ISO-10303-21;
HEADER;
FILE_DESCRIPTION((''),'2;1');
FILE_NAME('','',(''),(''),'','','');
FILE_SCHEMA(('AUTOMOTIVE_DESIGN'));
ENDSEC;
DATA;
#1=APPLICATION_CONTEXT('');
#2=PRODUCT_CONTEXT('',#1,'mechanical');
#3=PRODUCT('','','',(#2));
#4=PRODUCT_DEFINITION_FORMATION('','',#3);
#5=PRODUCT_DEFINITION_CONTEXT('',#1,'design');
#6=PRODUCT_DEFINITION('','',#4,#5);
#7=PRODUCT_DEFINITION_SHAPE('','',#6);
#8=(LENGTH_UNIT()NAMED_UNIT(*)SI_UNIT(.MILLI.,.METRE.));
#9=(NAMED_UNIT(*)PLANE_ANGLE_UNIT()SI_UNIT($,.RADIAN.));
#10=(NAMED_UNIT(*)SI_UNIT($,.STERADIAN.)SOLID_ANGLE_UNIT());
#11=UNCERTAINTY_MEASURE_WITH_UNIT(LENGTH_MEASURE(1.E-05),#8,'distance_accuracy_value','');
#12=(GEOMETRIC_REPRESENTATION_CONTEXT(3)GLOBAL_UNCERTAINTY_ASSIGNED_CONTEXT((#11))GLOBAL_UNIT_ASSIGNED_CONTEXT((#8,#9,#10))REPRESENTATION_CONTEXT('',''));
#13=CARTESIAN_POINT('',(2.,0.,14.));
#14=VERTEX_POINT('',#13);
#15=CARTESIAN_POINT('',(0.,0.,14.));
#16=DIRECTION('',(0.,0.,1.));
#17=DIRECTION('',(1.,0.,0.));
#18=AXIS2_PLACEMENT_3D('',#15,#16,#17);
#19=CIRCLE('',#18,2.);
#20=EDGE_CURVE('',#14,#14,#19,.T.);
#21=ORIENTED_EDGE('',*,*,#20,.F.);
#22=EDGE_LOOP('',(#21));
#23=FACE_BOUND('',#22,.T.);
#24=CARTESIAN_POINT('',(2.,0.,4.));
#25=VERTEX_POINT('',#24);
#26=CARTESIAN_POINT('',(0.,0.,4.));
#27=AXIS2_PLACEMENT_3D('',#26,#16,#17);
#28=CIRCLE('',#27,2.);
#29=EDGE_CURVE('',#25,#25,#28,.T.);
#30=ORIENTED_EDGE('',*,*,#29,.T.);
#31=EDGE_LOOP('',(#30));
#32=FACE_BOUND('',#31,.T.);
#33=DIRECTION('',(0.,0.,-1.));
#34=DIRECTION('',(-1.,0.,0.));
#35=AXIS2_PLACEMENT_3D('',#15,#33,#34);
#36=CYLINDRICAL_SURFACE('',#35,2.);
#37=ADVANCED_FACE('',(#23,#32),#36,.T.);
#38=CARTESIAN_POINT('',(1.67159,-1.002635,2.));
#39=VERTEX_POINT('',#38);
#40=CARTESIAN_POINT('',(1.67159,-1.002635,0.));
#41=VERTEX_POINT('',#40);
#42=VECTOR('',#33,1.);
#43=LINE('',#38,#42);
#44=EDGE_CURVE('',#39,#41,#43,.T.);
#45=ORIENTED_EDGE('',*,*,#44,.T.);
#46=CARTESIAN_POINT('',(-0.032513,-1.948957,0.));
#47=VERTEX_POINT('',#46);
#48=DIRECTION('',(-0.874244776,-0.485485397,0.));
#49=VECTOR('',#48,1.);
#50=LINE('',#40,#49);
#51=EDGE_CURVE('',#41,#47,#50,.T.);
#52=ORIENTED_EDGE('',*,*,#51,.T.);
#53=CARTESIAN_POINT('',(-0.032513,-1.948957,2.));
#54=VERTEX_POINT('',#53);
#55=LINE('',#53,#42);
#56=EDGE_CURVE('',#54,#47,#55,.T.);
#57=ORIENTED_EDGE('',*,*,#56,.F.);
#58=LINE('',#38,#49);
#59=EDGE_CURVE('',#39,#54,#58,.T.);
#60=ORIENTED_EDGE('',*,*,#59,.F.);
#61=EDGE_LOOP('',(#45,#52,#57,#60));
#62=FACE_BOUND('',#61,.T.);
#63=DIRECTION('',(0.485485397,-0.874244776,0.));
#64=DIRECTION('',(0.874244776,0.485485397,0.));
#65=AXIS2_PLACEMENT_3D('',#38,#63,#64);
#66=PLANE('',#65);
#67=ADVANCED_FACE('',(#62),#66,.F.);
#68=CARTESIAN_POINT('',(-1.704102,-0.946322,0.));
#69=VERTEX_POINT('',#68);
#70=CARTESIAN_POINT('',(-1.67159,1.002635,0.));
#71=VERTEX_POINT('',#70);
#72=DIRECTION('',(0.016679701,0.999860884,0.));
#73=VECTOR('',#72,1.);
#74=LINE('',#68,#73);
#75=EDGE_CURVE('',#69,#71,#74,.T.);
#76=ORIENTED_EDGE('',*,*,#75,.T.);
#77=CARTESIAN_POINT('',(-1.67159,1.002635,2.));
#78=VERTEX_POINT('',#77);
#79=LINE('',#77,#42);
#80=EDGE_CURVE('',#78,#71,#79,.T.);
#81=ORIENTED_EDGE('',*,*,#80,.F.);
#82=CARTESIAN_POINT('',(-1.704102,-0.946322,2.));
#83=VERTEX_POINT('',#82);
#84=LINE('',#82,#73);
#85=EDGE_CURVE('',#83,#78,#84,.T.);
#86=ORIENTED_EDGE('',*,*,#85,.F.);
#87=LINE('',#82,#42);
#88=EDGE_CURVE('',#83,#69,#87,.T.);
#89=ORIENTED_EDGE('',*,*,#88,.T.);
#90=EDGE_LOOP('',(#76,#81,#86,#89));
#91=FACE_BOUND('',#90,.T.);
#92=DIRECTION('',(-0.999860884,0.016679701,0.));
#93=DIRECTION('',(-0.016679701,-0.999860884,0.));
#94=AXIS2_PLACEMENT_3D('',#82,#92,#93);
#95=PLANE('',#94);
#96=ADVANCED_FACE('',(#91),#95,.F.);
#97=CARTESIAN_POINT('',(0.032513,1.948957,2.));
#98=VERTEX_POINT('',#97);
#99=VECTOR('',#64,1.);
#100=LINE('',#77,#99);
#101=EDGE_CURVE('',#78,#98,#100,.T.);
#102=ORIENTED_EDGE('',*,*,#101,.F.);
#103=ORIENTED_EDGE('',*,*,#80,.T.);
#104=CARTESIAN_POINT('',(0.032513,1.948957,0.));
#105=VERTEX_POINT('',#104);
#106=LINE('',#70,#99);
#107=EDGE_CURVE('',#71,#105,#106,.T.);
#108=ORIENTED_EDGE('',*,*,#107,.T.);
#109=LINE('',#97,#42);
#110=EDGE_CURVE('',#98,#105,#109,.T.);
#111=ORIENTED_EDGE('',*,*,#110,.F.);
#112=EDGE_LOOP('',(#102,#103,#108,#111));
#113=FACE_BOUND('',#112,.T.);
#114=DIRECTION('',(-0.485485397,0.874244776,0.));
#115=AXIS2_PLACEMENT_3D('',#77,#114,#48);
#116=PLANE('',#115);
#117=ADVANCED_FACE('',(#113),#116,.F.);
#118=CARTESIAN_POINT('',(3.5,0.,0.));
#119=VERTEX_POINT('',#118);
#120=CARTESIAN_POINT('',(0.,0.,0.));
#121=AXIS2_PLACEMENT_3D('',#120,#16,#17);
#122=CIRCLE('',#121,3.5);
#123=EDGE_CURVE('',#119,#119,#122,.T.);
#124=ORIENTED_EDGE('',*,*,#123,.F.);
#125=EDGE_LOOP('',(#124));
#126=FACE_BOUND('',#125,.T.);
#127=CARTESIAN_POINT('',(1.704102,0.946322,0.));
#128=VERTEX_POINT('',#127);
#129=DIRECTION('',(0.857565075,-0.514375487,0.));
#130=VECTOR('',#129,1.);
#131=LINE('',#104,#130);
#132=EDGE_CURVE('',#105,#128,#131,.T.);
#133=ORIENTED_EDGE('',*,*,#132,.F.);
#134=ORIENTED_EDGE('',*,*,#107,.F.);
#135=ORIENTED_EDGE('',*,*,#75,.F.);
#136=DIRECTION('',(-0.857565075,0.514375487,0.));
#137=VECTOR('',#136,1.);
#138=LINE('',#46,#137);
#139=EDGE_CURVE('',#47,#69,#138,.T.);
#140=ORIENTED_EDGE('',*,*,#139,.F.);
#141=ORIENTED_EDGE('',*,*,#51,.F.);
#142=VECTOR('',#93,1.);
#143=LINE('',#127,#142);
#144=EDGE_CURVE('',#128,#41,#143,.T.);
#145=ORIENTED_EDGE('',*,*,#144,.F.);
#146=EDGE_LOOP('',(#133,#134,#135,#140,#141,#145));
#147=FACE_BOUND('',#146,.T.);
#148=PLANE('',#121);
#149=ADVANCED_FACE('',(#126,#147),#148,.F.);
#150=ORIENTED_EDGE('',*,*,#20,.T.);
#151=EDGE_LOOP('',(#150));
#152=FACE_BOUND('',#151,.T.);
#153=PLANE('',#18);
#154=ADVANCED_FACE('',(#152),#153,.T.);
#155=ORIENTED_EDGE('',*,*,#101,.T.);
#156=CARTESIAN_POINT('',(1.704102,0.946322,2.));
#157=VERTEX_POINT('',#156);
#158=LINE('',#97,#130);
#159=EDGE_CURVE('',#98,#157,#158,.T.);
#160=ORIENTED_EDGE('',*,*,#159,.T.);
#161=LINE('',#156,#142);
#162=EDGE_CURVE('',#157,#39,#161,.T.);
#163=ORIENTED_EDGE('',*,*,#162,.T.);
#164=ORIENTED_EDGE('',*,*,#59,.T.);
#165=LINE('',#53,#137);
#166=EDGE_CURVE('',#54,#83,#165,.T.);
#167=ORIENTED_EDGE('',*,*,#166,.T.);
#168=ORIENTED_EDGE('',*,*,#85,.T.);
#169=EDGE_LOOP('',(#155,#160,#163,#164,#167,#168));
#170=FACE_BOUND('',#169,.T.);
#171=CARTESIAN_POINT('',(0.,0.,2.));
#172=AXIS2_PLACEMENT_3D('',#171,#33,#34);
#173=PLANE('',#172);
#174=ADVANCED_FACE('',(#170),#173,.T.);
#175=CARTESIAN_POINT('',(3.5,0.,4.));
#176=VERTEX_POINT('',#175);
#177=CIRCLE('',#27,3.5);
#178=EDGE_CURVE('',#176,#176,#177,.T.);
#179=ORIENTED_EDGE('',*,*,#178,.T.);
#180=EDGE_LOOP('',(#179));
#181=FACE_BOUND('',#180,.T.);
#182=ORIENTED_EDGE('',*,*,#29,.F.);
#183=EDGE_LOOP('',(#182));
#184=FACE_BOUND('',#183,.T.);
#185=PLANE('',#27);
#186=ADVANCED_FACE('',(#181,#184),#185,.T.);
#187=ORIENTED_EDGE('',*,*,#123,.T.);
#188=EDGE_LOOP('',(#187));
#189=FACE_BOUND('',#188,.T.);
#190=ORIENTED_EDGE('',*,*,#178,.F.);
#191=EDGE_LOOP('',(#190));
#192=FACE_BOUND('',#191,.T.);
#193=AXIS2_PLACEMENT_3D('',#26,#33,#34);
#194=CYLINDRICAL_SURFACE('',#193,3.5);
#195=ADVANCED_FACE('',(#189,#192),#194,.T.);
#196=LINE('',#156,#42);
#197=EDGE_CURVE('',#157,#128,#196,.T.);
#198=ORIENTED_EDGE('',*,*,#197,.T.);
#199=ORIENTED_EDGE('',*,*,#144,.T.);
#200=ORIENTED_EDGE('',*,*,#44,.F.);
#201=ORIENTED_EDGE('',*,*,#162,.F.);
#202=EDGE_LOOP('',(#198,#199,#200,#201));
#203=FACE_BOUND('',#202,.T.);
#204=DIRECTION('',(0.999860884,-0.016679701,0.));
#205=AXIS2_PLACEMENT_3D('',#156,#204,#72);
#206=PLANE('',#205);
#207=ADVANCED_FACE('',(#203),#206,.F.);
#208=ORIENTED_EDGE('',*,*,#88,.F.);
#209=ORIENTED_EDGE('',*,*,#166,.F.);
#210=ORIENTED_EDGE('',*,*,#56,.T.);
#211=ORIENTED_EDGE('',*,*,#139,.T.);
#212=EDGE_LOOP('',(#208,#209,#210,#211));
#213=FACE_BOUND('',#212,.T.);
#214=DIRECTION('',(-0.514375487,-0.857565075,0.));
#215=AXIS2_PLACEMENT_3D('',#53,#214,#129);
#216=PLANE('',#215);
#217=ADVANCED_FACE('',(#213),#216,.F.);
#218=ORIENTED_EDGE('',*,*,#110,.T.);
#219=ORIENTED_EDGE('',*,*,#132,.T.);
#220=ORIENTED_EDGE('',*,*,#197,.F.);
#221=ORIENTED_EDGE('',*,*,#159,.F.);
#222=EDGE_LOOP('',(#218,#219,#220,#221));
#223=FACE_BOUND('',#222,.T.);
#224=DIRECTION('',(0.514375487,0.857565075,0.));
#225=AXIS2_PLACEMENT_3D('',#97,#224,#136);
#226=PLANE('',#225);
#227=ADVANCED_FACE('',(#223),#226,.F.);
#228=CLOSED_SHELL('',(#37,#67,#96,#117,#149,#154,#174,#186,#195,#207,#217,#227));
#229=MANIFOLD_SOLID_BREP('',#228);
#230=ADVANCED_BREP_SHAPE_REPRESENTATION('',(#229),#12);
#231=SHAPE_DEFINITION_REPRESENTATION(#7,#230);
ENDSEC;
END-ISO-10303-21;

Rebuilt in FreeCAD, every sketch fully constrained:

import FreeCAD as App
import Part
import Sketcher

V = App.Vector
Q = App.Units.Quantity

doc = App.newDocument("Part")
body = doc.addObject("PartDesign::Body", "Body")

sketch1 = body.newObject("Sketcher::SketchObject", "Sketch")
sketch1.AttachmentSupport = (doc.getObject("XY_Plane"), [""])
sketch1.MapMode = "FlatFace"
sketch1.addGeometry(Part.Circle(V(0, 0, 0), V(0, 0, 1), 3.5), False)
sketch1.addConstraint(Sketcher.Constraint("Coincident", 0, 3, -1, 1))
sketch1.addConstraint(Sketcher.Constraint("Diameter", 0, Q("7 mm")))
pad1 = body.newObject("PartDesign::Pad", "Pad")
pad1.Profile = sketch1
pad1.Length = 4

sketch2 = body.newObject("Sketcher::SketchObject", "Sketch001")
sketch2.AttachmentSupport = (doc.getObject("XY_Plane"), [""])
sketch2.MapMode = "FlatFace"
sketch2.AttachmentOffset = App.Placement(V(0, 0, 4), App.Rotation())
sketch2.addGeometry(Part.Circle(V(0, 0, 0), V(0, 0, 1), 2), False)
sketch2.addConstraint(Sketcher.Constraint("Coincident", 0, 3, -1, 1))
sketch2.addConstraint(Sketcher.Constraint("Diameter", 0, Q("4 mm")))
pad2 = body.newObject("PartDesign::Pad", "Pad001")
pad2.Profile = sketch2
pad2.Length = 10

sketch3 = body.newObject("Sketcher::SketchObject", "Sketch002")
sketch3.AttachmentSupport = (doc.getObject("XY_Plane"), [""])
sketch3.MapMode = "FlatFace"
sketch3.addGeometry(Part.LineSegment(V(-1.7, -0.9, 0), V(-1.7, 1, 0)), False)
sketch3.addGeometry(Part.LineSegment(V(-1.7, 1, 0), V(0, 1.9, 0)), False)
sketch3.addGeometry(Part.LineSegment(V(0, 1.9, 0), V(1.7, 0.9, 0)), False)
sketch3.addGeometry(Part.LineSegment(V(1.7, 0.9, 0), V(1.7, -1, 0)), False)
sketch3.addGeometry(Part.LineSegment(V(1.7, -1, 0), V(0, -1.9, 0)), False)
sketch3.addGeometry(Part.LineSegment(V(0, -1.9, 0), V(-1.7, -0.9, 0)), False)
sketch3.addConstraint(Sketcher.Constraint("Coincident", 0, 2, 1, 1))
sketch3.addConstraint(Sketcher.Constraint("Coincident", 1, 2, 2, 1))
sketch3.addConstraint(Sketcher.Constraint("Coincident", 2, 2, 3, 1))
sketch3.addConstraint(Sketcher.Constraint("Coincident", 3, 2, 4, 1))
sketch3.addConstraint(Sketcher.Constraint("Coincident", 4, 2, 5, 1))
sketch3.addConstraint(Sketcher.Constraint("Coincident", 5, 2, 0, 1))
sketch3.addConstraint(Sketcher.Constraint("Symmetric", 0, 2, 3, 2, -1, 1))
sketch3.addConstraint(Sketcher.Constraint("Symmetric", 1, 2, 4, 2, -1, 1))
sketch3.addConstraint(Sketcher.Constraint("Symmetric", 2, 2, 5, 2, -1, 1))
sketch3.addConstraint(Sketcher.Constraint("Equal", 0, 1))
sketch3.addConstraint(Sketcher.Constraint("Equal", 1, 2))
sketch3.addConstraint(Sketcher.Constraint("Distance", 0, Q("1.949228 mm")))
sketch3.addConstraint(Sketcher.Constraint("DistanceX", 0, 2, -1, 1, Q("1.67159 mm")))
sketch3.addConstraint(Sketcher.Constraint("DistanceY", -1, 1, 2, 2, Q("0.946322 mm")))
sketch3.addConstraint(Sketcher.Constraint("DistanceY", 0, 2, 1, 2, Q("0.946322 mm")))
pocket1 = body.newObject("PartDesign::Pocket", "Pocket")
pocket1.Profile = sketch3
pocket1.Length = 2
pocket1.Reversed = True

doc.recompute()
